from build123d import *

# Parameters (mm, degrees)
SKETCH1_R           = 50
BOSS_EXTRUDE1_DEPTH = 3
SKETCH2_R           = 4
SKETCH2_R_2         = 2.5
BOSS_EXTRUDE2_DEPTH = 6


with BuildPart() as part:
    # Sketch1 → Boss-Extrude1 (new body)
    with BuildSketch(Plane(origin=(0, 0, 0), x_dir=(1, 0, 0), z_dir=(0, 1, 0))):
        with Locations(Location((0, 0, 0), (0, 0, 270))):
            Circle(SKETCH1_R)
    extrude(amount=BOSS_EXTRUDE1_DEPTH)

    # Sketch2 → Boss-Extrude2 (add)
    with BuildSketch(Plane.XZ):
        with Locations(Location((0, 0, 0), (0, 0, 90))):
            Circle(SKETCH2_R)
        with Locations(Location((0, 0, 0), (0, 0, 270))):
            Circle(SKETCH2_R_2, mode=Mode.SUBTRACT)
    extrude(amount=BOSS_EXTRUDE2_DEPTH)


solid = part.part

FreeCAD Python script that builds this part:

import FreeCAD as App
import Part
import Sketcher
from FreeCAD import Vector

doc = App.newDocument("Part")
params = doc.addObject("Spreadsheet::Sheet", "Params")
for row, (alias, value) in enumerate([
    ("sketch1_diameter", "100 mm"),
    ("pad1_length", "3 mm"),
    ("sketch2_diameter", "8 mm"),
    ("sketch2_diameter2", "5 mm"),
    ("pad2_length", "6 mm"),
], start=1):
    params.set(f"A{row}", alias)
    params.set(f"B{row}", "=" + value)
    params.setAlias(f"B{row}", alias)

body = doc.addObject("PartDesign::Body", "Body")

# Sketch on XZ plane
sketch1 = doc.addObject("Sketcher::SketchObject", "Sketch")
body.addObject(sketch1)
sketch1.AttachmentSupport = (doc.XZ_Plane, [""])
sketch1.MapMode = "FlatFace"
sketch1.addGeometry(Part.Circle(Vector(0, 0, 0), Vector(0, 0, 1), 50), False)
sketch1.addConstraint([
    Sketcher.Constraint("Coincident", 0, 3, -1, 1),
    Sketcher.Constraint("Diameter", 0, 100.0),
])
sketch1.setExpression("Constraints[1]", "Params.sketch1_diameter")
pad1 = doc.addObject("PartDesign::Pad", "Pad")
body.addObject(pad1)
pad1.Profile = sketch1
pad1.setExpression("Length", "Params.pad1_length")
pad1.Reversed = True

# Sketch on XZ plane
sketch2 = doc.addObject("Sketcher::SketchObject", "Sketch001")
body.addObject(sketch2)
sketch2.AttachmentSupport = (doc.XZ_Plane, [""])
sketch2.MapMode = "FlatFace"
sketch2.addGeometry([
    Part.Circle(Vector(0, 0, 0), Vector(0, 0, 1), 4),
    Part.Circle(Vector(0, 0, 0), Vector(0, 0, 1), 2.5),
], False)
sketch2.addConstraint([
    Sketcher.Constraint("Coincident", 0, 3, -1, 1),
    Sketcher.Constraint("Coincident", 1, 3, -1, 1),
    Sketcher.Constraint("Diameter", 0, 8.0),
    Sketcher.Constraint("Diameter", 1, 5.0),
])
sketch2.setExpression("Constraints[2]", "Params.sketch2_diameter")
sketch2.setExpression("Constraints[3]", "Params.sketch2_diameter2")
pad2 = doc.addObject("PartDesign::Pad", "Pad001")
body.addObject(pad2)
pad2.Profile = sketch2
pad2.setExpression("Length", "Params.pad2_length")

doc.recompute()
